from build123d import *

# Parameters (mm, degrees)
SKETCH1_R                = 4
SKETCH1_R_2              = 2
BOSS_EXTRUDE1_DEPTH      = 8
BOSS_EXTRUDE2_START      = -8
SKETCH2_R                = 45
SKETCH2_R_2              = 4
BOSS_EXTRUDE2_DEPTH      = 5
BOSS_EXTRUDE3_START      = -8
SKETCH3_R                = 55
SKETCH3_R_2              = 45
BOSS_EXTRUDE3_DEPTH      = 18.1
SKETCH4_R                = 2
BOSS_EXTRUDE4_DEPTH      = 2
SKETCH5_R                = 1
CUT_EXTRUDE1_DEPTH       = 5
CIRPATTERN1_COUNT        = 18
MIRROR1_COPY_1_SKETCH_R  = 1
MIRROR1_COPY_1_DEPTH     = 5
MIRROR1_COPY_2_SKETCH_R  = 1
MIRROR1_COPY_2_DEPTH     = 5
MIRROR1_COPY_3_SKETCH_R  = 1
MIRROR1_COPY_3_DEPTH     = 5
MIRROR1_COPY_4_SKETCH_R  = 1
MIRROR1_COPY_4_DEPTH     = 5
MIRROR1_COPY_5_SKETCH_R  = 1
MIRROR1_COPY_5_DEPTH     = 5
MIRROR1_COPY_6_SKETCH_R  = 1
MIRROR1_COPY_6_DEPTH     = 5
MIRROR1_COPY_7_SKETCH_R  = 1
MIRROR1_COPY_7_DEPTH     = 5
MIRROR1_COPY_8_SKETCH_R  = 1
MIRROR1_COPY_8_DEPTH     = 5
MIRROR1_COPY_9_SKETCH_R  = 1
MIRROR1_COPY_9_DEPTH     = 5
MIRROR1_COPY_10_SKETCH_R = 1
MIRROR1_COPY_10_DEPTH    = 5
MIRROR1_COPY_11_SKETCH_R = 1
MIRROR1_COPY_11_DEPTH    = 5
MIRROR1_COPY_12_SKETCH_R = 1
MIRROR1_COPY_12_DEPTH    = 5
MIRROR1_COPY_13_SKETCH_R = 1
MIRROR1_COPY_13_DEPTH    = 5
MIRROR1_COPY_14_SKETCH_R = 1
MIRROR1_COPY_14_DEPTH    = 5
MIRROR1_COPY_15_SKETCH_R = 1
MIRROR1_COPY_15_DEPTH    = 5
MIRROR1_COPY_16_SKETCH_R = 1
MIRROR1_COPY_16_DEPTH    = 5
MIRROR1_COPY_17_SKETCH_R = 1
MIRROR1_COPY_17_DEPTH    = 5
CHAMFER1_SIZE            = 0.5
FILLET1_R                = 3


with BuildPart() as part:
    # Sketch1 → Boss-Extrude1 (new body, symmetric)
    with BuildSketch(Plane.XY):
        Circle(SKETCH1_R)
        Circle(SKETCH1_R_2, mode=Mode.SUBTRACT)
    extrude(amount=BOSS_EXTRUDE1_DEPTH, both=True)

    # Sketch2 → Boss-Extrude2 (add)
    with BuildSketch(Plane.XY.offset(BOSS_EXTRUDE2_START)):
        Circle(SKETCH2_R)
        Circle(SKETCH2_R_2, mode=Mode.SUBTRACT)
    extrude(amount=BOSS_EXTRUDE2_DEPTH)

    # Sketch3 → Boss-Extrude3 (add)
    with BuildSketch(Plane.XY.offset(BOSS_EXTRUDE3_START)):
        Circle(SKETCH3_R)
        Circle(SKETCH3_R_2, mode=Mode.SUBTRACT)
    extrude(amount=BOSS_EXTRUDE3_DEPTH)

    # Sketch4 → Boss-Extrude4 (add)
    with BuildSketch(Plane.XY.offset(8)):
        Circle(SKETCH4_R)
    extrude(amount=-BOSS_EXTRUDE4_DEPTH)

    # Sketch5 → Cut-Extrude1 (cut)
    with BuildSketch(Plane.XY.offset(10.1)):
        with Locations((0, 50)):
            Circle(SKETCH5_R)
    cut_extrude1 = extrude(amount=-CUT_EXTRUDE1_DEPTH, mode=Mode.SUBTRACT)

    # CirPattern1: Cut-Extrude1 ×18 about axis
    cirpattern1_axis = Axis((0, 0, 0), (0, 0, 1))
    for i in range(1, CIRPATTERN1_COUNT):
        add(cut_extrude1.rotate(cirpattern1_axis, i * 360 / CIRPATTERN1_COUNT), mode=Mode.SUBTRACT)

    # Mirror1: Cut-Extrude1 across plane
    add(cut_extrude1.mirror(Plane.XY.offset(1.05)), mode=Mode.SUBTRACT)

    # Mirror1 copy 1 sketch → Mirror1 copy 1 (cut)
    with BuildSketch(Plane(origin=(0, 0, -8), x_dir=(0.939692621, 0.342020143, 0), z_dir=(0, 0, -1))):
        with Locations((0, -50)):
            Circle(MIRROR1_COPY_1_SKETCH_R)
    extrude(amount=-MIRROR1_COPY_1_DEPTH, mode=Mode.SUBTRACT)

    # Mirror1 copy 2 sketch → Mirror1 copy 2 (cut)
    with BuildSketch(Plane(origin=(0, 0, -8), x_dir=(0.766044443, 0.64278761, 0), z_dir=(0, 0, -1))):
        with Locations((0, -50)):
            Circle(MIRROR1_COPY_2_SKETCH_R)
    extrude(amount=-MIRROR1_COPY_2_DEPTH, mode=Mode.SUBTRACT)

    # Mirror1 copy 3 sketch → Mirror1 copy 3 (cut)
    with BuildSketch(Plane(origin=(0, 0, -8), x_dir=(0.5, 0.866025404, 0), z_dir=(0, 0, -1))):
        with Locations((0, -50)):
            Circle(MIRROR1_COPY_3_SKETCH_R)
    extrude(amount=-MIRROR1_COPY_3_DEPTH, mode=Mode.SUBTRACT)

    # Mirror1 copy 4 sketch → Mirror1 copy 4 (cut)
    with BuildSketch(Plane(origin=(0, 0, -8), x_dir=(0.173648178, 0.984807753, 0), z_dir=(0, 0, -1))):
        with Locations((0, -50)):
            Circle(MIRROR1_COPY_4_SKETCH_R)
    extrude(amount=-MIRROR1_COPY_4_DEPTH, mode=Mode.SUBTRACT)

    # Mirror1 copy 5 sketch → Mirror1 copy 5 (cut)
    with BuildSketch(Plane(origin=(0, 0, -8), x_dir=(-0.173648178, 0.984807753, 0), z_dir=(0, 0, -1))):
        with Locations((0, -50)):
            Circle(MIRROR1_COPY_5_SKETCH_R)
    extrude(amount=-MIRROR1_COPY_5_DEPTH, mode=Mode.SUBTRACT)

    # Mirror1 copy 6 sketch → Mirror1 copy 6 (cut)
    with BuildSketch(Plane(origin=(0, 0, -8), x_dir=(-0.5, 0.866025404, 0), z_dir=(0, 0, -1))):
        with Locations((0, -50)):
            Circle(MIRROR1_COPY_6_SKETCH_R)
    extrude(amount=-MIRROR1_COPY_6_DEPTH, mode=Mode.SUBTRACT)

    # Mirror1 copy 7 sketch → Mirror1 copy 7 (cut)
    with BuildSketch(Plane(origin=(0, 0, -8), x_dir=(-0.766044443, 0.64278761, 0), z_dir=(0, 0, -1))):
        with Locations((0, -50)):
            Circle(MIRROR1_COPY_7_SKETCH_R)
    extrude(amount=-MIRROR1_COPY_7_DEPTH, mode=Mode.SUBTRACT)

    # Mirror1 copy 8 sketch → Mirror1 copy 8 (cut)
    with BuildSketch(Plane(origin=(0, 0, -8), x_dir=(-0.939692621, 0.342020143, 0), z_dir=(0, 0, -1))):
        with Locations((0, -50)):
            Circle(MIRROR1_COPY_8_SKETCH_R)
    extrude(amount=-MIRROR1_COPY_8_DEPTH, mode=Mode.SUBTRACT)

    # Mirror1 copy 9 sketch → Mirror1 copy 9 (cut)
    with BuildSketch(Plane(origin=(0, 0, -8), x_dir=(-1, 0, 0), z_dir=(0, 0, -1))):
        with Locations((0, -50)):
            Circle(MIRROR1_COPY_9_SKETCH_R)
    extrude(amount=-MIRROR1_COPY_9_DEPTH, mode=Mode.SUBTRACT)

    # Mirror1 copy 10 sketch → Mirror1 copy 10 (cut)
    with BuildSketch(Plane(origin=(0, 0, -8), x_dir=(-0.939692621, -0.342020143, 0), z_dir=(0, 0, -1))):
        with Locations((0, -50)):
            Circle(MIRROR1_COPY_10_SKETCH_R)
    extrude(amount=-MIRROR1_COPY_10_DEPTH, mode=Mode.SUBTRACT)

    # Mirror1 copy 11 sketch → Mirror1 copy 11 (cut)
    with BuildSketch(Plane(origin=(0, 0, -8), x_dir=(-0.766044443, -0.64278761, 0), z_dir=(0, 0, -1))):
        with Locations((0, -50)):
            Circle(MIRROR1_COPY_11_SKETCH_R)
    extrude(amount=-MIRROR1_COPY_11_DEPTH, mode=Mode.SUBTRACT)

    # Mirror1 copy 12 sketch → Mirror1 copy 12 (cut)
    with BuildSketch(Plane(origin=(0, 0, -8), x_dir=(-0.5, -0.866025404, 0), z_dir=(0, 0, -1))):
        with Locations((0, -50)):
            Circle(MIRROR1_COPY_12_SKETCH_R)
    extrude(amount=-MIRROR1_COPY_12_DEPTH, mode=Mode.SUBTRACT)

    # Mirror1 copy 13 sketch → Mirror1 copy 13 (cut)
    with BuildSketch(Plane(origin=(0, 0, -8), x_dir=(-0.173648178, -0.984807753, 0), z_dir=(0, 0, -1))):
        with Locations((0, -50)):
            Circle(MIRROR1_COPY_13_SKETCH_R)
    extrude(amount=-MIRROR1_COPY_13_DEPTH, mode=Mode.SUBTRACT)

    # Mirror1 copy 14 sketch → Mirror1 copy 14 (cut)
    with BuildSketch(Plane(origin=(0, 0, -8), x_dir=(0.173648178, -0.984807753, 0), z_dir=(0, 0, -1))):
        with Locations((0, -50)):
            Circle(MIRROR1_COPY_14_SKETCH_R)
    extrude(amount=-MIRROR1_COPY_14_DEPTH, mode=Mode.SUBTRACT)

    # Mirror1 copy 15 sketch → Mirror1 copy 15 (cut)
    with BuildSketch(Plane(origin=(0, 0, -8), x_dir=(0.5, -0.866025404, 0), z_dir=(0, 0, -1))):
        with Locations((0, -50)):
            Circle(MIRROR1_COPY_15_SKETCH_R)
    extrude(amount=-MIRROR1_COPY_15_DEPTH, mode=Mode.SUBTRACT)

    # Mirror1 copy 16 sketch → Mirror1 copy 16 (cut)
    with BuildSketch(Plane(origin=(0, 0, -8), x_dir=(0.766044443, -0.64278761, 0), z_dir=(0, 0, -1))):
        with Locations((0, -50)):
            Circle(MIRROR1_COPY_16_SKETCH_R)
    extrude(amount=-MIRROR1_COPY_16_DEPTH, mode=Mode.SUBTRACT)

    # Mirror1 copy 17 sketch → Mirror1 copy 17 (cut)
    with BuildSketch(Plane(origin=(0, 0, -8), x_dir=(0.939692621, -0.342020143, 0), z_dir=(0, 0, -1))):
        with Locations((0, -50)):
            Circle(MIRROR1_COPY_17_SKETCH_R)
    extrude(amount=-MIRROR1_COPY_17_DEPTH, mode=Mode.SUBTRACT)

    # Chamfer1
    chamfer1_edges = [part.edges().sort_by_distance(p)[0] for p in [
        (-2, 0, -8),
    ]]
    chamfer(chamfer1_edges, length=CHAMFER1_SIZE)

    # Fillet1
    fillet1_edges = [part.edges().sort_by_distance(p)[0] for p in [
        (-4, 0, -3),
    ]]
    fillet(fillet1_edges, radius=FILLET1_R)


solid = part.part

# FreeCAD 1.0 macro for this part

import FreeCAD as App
import Part
import Sketcher
from FreeCAD import Vector
Q = App.Units.Quantity


def edges_at(feature, points):
    """Names of the edges that pass closest to the given points."""
    edges = feature.Shape.Edges
    near = lambda p: min(range(len(edges)), key=lambda i: edges[i].distToShape(Part.Vertex(*p))[0])
    return sorted({f"Edge{near(p) + 1}" for p in points})

doc = App.newDocument("Part")
body = doc.addObject("PartDesign::Body", "Body")

# Sketch on XY plane
sketch1 = body.newObject("Sketcher::SketchObject", "Sketch")
sketch1.AttachmentSupport = (doc.getObject("XY_Plane"), [""])
sketch1.MapMode = "FlatFace"
sketch1.addGeometry(Part.Circle(Vector(0, 0, 0), Vector(0, 0, 1), 4), False)
sketch1.addGeometry(Part.Circle(Vector(0, 0, 0), Vector(0, 0, 1), 2), False)
sketch1.addConstraint(Sketcher.Constraint("Coincident", 0, 3, -1, 1))
sketch1.addConstraint(Sketcher.Constraint("Coincident", 1, 3, -1, 1))
sketch1.addConstraint(Sketcher.Constraint("Diameter", 0, Q("8 mm")))
sketch1.addConstraint(Sketcher.Constraint("Diameter", 1, Q("4 mm")))
pad1 = body.newObject("PartDesign::Pad", "Pad")
pad1.Profile = sketch1
pad1.Length = 16
pad1.Midplane = True

# Sketch on XY plane
sketch2 = body.newObject("Sketcher::SketchObject", "Sketch001")
sketch2.AttachmentSupport = (doc.getObject("XY_Plane"), [""])
sketch2.MapMode = "FlatFace"
sketch2.AttachmentOffset = App.Placement(Vector(0, 0, -8), App.Rotation())
sketch2.addGeometry(Part.Circle(Vector(0, 0, 0), Vector(0, 0, 1), 45), False)
sketch2.addGeometry(Part.Circle(Vector(0, 0, 0), Vector(0, 0, 1), 4), False)
sketch2.addConstraint(Sketcher.Constraint("Coincident", 0, 3, -1, 1))
sketch2.addConstraint(Sketcher.Constraint("Coincident", 1, 3, -1, 1))
sketch2.addConstraint(Sketcher.Constraint("Diameter", 0, Q("90 mm")))
sketch2.addConstraint(Sketcher.Constraint("Diameter", 1, Q("8 mm")))
pad2 = body.newObject("PartDesign::Pad", "Pad001")
pad2.Profile = sketch2
pad2.Length = 5

# Sketch on XY plane
sketch3 = body.newObject("Sketcher::SketchObject", "Sketch002")
sketch3.AttachmentSupport = (doc.getObject("XY_Plane"), [""])
sketch3.MapMode = "FlatFace"
sketch3.AttachmentOffset = App.Placement(Vector(0, 0, -8), App.Rotation())
sketch3.addGeometry(Part.Circle(Vector(0, 0, 0), Vector(0, 0, 1), 55), False)
sketch3.addGeometry(Part.Circle(Vector(0, 0, 0), Vector(0, 0, 1), 45), False)
sketch3.addConstraint(Sketcher.Constraint("Coincident", 0, 3, -1, 1))
sketch3.addConstraint(Sketcher.Constraint("Coincident", 1, 3, -1, 1))
sketch3.addConstraint(Sketcher.Constraint("Diameter", 0, Q("110 mm")))
sketch3.addConstraint(Sketcher.Constraint("Diameter", 1, Q("90 mm")))
pad3 = body.newObject("PartDesign::Pad", "Pad002")
pad3.Profile = sketch3
pad3.Length = 18.1

# Sketch on XY plane
sketch4 = body.newObject("Sketcher::SketchObject", "Sketch003")
sketch4.AttachmentSupport = (doc.getObject("XY_Plane"), [""])
sketch4.MapMode = "FlatFace"
sketch4.AttachmentOffset = App.Placement(Vector(0, 0, 8), App.Rotation())
sketch4.addGeometry(Part.Circle(Vector(0, 0, 0), Vector(0, 0, 1), 2), False)
sketch4.addConstraint(Sketcher.Constraint("Coincident", 0, 3, -1, 1))
sketch4.addConstraint(Sketcher.Constraint("Diameter", 0, Q("4 mm")))
pad4 = body.newObject("PartDesign::Pad", "Pad003")
pad4.Profile = sketch4
pad4.Length = 2
pad4.Reversed = True

# Sketch on XY plane
sketch5 = body.newObject("Sketcher::SketchObject", "Sketch004")
sketch5.AttachmentSupport = (doc.getObject("XY_Plane"), [""])
sketch5.MapMode = "FlatFace"
sketch5.AttachmentOffset = App.Placement(Vector(0, 0, 10.1), App.Rotation())
sketch5.addGeometry(Part.Circle(Vector(0, 50, 0), Vector(0, 0, 1), 1), False)
sketch5.addConstraint(Sketcher.Constraint("PointOnObject", 0, 3, -2))
sketch5.addConstraint(Sketcher.Constraint("Diameter", 0, Q("2 mm")))
sketch5.addConstraint(Sketcher.Constraint("DistanceY", -1, 1, 0, 3, Q("50 mm")))
pocket1 = body.newObject("PartDesign::Pocket", "Pocket")
pocket1.Profile = sketch5
pocket1.Length = 5
doc.recompute()

polarpattern = body.newObject("PartDesign::PolarPattern", "PolarPattern")
polarpattern.Originals = [pocket1]
polarpattern.Axis = (doc.getObject("Z_Axis"), [""])
polarpattern.Angle = 360
polarpattern.Occurrences = 18
body.Tip = polarpattern
doc.recompute()

datumplane = body.newObject("PartDesign::Plane", "DatumPlane")
datumplane.AttachmentSupport = (doc.getObject("XY_Plane"), [""])
datumplane.MapMode = "FlatFace"
datumplane.AttachmentOffset = App.Placement(Vector(0, 0, 1.05), App.Rotation())
mirrored = body.newObject("PartDesign::Mirrored", "Mirrored")
mirrored.Originals = [pocket1]
mirrored.MirrorPlane = (datumplane, [""])
body.Tip = mirrored

# Sketch on XY plane
sketch6 = body.newObject("Sketcher::SketchObject", "Sketch005")
sketch6.AttachmentSupport = (doc.getObject("XY_Plane"), [""])
sketch6.MapMode = "FlatFace"
sketch6.AttachmentOffset = App.Placement(Vector(0, 0, -8), App.Rotation())
sketch6.addGeometry(Part.Circle(Vector(-17.1, 47, 0), Vector(0, 0, 1), 1), False)
sketch6.addConstraint(Sketcher.Constraint("Diameter", 0, Q("2 mm")))
sketch6.addConstraint(Sketcher.Constraint("DistanceY", -1, 1, 0, 3, Q("46.984631 mm")))
sketch6.addConstraint(Sketcher.Constraint("DistanceX", 0, 3, -1, 1, Q("17.101007 mm")))
pocket2 = body.newObject("PartDesign::Pocket", "Pocket001")
pocket2.Profile = sketch6
pocket2.Length = 5
pocket2.Reversed = True

# Sketch on XY plane
sketch7 = body.newObject("Sketcher::SketchObject", "Sketch006")
sketch7.AttachmentSupport = (doc.getObject("XY_Plane"), [""])
sketch7.MapMode = "FlatFace"
sketch7.AttachmentOffset = App.Placement(Vector(0, 0, -8), App.Rotation())
sketch7.addGeometry(Part.Circle(Vector(-32.1, 38.3, 0), Vector(0, 0, 1), 1), False)
sketch7.addConstraint(Sketcher.Constraint("Diameter", 0, Q("2 mm")))
sketch7.addConstraint(Sketcher.Constraint("DistanceX", 0, 3, -1, 1, Q("32.139381 mm")))
sketch7.addConstraint(Sketcher.Constraint("DistanceY", -1, 1, 0, 3, Q("38.302222 mm")))
pocket3 = body.newObject("PartDesign::Pocket", "Pocket002")
pocket3.Profile = sketch7
pocket3.Length = 5
pocket3.Reversed = True

# Sketch on XY plane
sketch8 = body.newObject("Sketcher::SketchObject", "Sketch007")
sketch8.AttachmentSupport = (doc.getObject("XY_Plane"), [""])
sketch8.MapMode = "FlatFace"
sketch8.AttachmentOffset = App.Placement(Vector(0, 0, -8), App.Rotation())
sketch8.addGeometry(Part.Circle(Vector(-43.3, 25, 0), Vector(0, 0, 1), 1), False)
sketch8.addConstraint(Sketcher.Constraint("Diameter", 0, Q("2 mm")))
sketch8.addConstraint(Sketcher.Constraint("DistanceY", -1, 1, 0, 3, Q("25 mm")))
sketch8.addConstraint(Sketcher.Constraint("DistanceX", 0, 3, -1, 1, Q("43.30127 mm")))
pocket4 = body.newObject("PartDesign::Pocket", "Pocket003")
pocket4.Profile = sketch8
pocket4.Length = 5
pocket4.Reversed = True

# Sketch on XY plane
sketch9 = body.newObject("Sketcher::SketchObject", "Sketch008")
sketch9.AttachmentSupport = (doc.getObject("XY_Plane"), [""])
sketch9.MapMode = "FlatFace"
sketch9.AttachmentOffset = App.Placement(Vector(0, 0, -8), App.Rotation())
sketch9.addGeometry(Part.Circle(Vector(-49.2, 8.7, 0), Vector(0, 0, 1), 1), False)
sketch9.addConstraint(Sketcher.Constraint("Diameter", 0, Q("2 mm")))
sketch9.addConstraint(Sketcher.Constraint("DistanceY", -1, 1, 0, 3, Q("8.682409 mm")))
sketch9.addConstraint(Sketcher.Constraint("DistanceX", 0, 3, -1, 1, Q("49.240388 mm")))
pocket5 = body.newObject("PartDesign::Pocket", "Pocket004")
pocket5.Profile = sketch9
pocket5.Length = 5
pocket5.Reversed = True

# Sketch on XY plane
sketch10 = body.newObject("Sketcher::SketchObject", "Sketch009")
sketch10.AttachmentSupport = (doc.getObject("XY_Plane"), [""])
sketch10.MapMode = "FlatFace"
sketch10.AttachmentOffset = App.Placement(Vector(0, 0, -8), App.Rotation())
sketch10.addGeometry(Part.Circle(Vector(-49.2, -8.7, 0), Vector(0, 0, 1), 1), False)
sketch10.addConstraint(Sketcher.Constraint("Diameter", 0, Q("2 mm")))
sketch10.addConstraint(Sketcher.Constraint("DistanceY", 0, 3, -1, 1, Q("8.682409 mm")))
sketch10.addConstraint(Sketcher.Constraint("DistanceX", 0, 3, -1, 1, Q("49.240388 mm")))
pocket6 = body.newObject("PartDesign::Pocket", "Pocket005")
pocket6.Profile = sketch10
pocket6.Length = 5
pocket6.Reversed = True

# Sketch on XY plane
sketch11 = body.newObject("Sketcher::SketchObject", "Sketch010")
sketch11.AttachmentSupport = (doc.getObject("XY_Plane"), [""])
sketch11.MapMode = "FlatFace"
sketch11.AttachmentOffset = App.Placement(Vector(0, 0, -8), App.Rotation())
sketch11.addGeometry(Part.Circle(Vector(-43.3, -25, 0), Vector(0, 0, 1), 1), False)
sketch11.addConstraint(Sketcher.Constraint("Diameter", 0, Q("2 mm")))
sketch11.addConstraint(Sketcher.Constraint("DistanceY", 0, 3, -1, 1, Q("25 mm")))
sketch11.addConstraint(Sketcher.Constraint("DistanceX", 0, 3, -1, 1, Q("43.30127 mm")))
pocket7 = body.newObject("PartDesign::Pocket", "Pocket006")
pocket7.Profile = sketch11
pocket7.Length = 5
pocket7.Reversed = True

# Sketch on XY plane
sketch12 = body.newObject("Sketcher::SketchObject", "Sketch011")
sketch12.AttachmentSupport = (doc.getObject("XY_Plane"), [""])
sketch12.MapMode = "FlatFace"
sketch12.AttachmentOffset = App.Placement(Vector(0, 0, -8), App.Rotation())
sketch12.addGeometry(Part.Circle(Vector(-32.1, -38.3, 0), Vector(0, 0, 1), 1), False)
sketch12.addConstraint(Sketcher.Constraint("Diameter", 0, Q("2 mm")))
sketch12.addConstraint(Sketcher.Constraint("DistanceX", 0, 3, -1, 1, Q("32.139381 mm")))
sketch12.addConstraint(Sketcher.Constraint("DistanceY", 0, 3, -1, 1, Q("38.302222 mm")))
pocket8 = body.newObject("PartDesign::Pocket", "Pocket007")
pocket8.Profile = sketch12
pocket8.Length = 5
pocket8.Reversed = True

# Sketch on XY plane
sketch13 = body.newObject("Sketcher::SketchObject", "Sketch012")
sketch13.AttachmentSupport = (doc.getObject("XY_Plane"), [""])
sketch13.MapMode = "FlatFace"
sketch13.AttachmentOffset = App.Placement(Vector(0, 0, -8), App.Rotation())
sketch13.addGeometry(Part.Circle(Vector(-17.1, -47, 0), Vector(0, 0, 1), 1), False)
sketch13.addConstraint(Sketcher.Constraint("Diameter", 0, Q("2 mm")))
sketch13.addConstraint(Sketcher.Constraint("DistanceY", 0, 3, -1, 1, Q("46.984631 mm")))
sketch13.addConstraint(Sketcher.Constraint("DistanceX", 0, 3, -1, 1, Q("17.101007 mm")))
pocket9 = body.newObject("PartDesign::Pocket", "Pocket008")
pocket9.Profile = sketch13
pocket9.Length = 5
pocket9.Reversed = True

# Sketch on XY plane
sketch14 = body.newObject("Sketcher::SketchObject", "Sketch013")
sketch14.AttachmentSupport = (doc.getObject("XY_Plane"), [""])
sketch14.MapMode = "FlatFace"
sketch14.AttachmentOffset = App.Placement(Vector(0, 0, -8), App.Rotation())
sketch14.addGeometry(Part.Circle(Vector(0, -50, 0), Vector(0, 0, 1), 1), False)
sketch14.addConstraint(Sketcher.Constraint("PointOnObject", 0, 3, -2))
sketch14.addConstraint(Sketcher.Constraint("Diameter", 0, Q("2 mm")))
sketch14.addConstraint(Sketcher.Constraint("DistanceY", 0, 3, -1, 1, Q("50 mm")))
pocket10 = body.newObject("PartDesign::Pocket", "Pocket009")
pocket10.Profile = sketch14
pocket10.Length = 5
pocket10.Reversed = True

# Sketch on XY plane
sketch15 = body.newObject("Sketcher::SketchObject", "Sketch014")
sketch15.AttachmentSupport = (doc.getObject("XY_Plane"), [""])
sketch15.MapMode = "FlatFace"
sketch15.AttachmentOffset = App.Placement(Vector(0, 0, -8), App.Rotation())
sketch15.addGeometry(Part.Circle(Vector(17.1, -47, 0), Vector(0, 0, 1), 1), False)
sketch15.addConstraint(Sketcher.Constraint("Diameter", 0, Q("2 mm")))
sketch15.addConstraint(Sketcher.Constraint("DistanceY", 0, 3, -1, 1, Q("46.984631 mm")))
sketch15.addConstraint(Sketcher.Constraint("DistanceX", -1, 1, 0, 3, Q("17.101007 mm")))
pocket11 = body.newObject("PartDesign::Pocket", "Pocket010")
pocket11.Profile = sketch15
pocket11.Length = 5
pocket11.Reversed = True

# Sketch on XY plane
sketch16 = body.newObject("Sketcher::SketchObject", "Sketch015")
sketch16.AttachmentSupport = (doc.getObject("XY_Plane"), [""])
sketch16.MapMode = "FlatFace"
sketch16.AttachmentOffset = App.Placement(Vector(0, 0, -8), App.Rotation())
sketch16.addGeometry(Part.Circle(Vector(32.1, -38.3, 0), Vector(0, 0, 1), 1), False)
sketch16.addConstraint(Sketcher.Constraint("Diameter", 0, Q("2 mm")))
sketch16.addConstraint(Sketcher.Constraint("DistanceX", -1, 1, 0, 3, Q("32.139381 mm")))
sketch16.addConstraint(Sketcher.Constraint("DistanceY", 0, 3, -1, 1, Q("38.302222 mm")))
pocket12 = body.newObject("PartDesign::Pocket", "Pocket011")
pocket12.Profile = sketch16
pocket12.Length = 5
pocket12.Reversed = True

# Sketch on XY plane
sketch17 = body.newObject("Sketcher::SketchObject", "Sketch016")
sketch17.AttachmentSupport = (doc.getObject("XY_Plane"), [""])
sketch17.MapMode = "FlatFace"
sketch17.AttachmentOffset = App.Placement(Vector(0, 0, -8), App.Rotation())
sketch17.addGeometry(Part.Circle(Vector(43.3, -25, 0), Vector(0, 0, 1), 1), False)
sketch17.addConstraint(Sketcher.Constraint("Diameter", 0, Q("2 mm")))
sketch17.addConstraint(Sketcher.Constraint("DistanceY", 0, 3, -1, 1, Q("25 mm")))
sketch17.addConstraint(Sketcher.Constraint("DistanceX", -1, 1, 0, 3, Q("43.30127 mm")))
pocket13 = body.newObject("PartDesign::Pocket", "Pocket012")
pocket13.Profile = sketch17
pocket13.Length = 5
pocket13.Reversed = True

# Sketch on XY plane
sketch18 = body.newObject("Sketcher::SketchObject", "Sketch017")
sketch18.AttachmentSupport = (doc.getObject("XY_Plane"), [""])
sketch18.MapMode = "FlatFace"
sketch18.AttachmentOffset = App.Placement(Vector(0, 0, -8), App.Rotation())
sketch18.addGeometry(Part.Circle(Vector(49.2, -8.7, 0), Vector(0, 0, 1), 1), False)
sketch18.addConstraint(Sketcher.Constraint("Diameter", 0, Q("2 mm")))
sketch18.addConstraint(Sketcher.Constraint("DistanceY", 0, 3, -1, 1, Q("8.682409 mm")))
sketch18.addConstraint(Sketcher.Constraint("DistanceX", -1, 1, 0, 3, Q("49.240388 mm")))
pocket14 = body.newObject("PartDesign::Pocket", "Pocket013")
pocket14.Profile = sketch18
pocket14.Length = 5
pocket14.Reversed = True

# Sketch on XY plane
sketch19 = body.newObject("Sketcher::SketchObject", "Sketch018")
sketch19.AttachmentSupport = (doc.getObject("XY_Plane"), [""])
sketch19.MapMode = "FlatFace"
sketch19.AttachmentOffset = App.Placement(Vector(0, 0, -8), App.Rotation())
sketch19.addGeometry(Part.Circle(Vector(49.2, 8.7, 0), Vector(0, 0, 1), 1), False)
sketch19.addConstraint(Sketcher.Constraint("Diameter", 0, Q("2 mm")))
sketch19.addConstraint(Sketcher.Constraint("DistanceY", -1, 1, 0, 3, Q("8.682409 mm")))
sketch19.addConstraint(Sketcher.Constraint("DistanceX", -1, 1, 0, 3, Q("49.240388 mm")))
pocket15 = body.newObject("PartDesign::Pocket", "Pocket014")
pocket15.Profile = sketch19
pocket15.Length = 5
pocket15.Reversed = True

# Sketch on XY plane
sketch20 = body.newObject("Sketcher::SketchObject", "Sketch019")
sketch20.AttachmentSupport = (doc.getObject("XY_Plane"), [""])
sketch20.MapMode = "FlatFace"
sketch20.AttachmentOffset = App.Placement(Vector(0, 0, -8), App.Rotation())
sketch20.addGeometry(Part.Circle(Vector(43.3, 25, 0), Vector(0, 0, 1), 1), False)
sketch20.addConstraint(Sketcher.Constraint("Diameter", 0, Q("2 mm")))
sketch20.addConstraint(Sketcher.Constraint("DistanceY", -1, 1, 0, 3, Q("25 mm")))
sketch20.addConstraint(Sketcher.Constraint("DistanceX", -1, 1, 0, 3, Q("43.30127 mm")))
pocket16 = body.newObject("PartDesign::Pocket", "Pocket015")
pocket16.Profile = sketch20
pocket16.Length = 5
pocket16.Reversed = True

# Sketch on XY plane
sketch21 = body.newObject("Sketcher::SketchObject", "Sketch020")
sketch21.AttachmentSupport = (doc.getObject("XY_Plane"), [""])
sketch21.MapMode = "FlatFace"
sketch21.AttachmentOffset = App.Placement(Vector(0, 0, -8), App.Rotation())
sketch21.addGeometry(Part.Circle(Vector(32.1, 38.3, 0), Vector(0, 0, 1), 1), False)
sketch21.addConstraint(Sketcher.Constraint("Diameter", 0, Q("2 mm")))
sketch21.addConstraint(Sketcher.Constraint("DistanceX", -1, 1, 0, 3, Q("32.139381 mm")))
sketch21.addConstraint(Sketcher.Constraint("DistanceY", -1, 1, 0, 3, Q("38.302222 mm")))
pocket17 = body.newObject("PartDesign::Pocket", "Pocket016")
pocket17.Profile = sketch21
pocket17.Length = 5
pocket17.Reversed = True

# Sketch on XY plane
sketch22 = body.newObject("Sketcher::SketchObject", "Sketch021")
sketch22.AttachmentSupport = (doc.getObject("XY_Plane"), [""])
sketch22.MapMode = "FlatFace"
sketch22.AttachmentOffset = App.Placement(Vector(0, 0, -8), App.Rotation())
sketch22.addGeometry(Part.Circle(Vector(17.1, 47, 0), Vector(0, 0, 1), 1), False)
sketch22.addConstraint(Sketcher.Constraint("Diameter", 0, Q("2 mm")))
sketch22.addConstraint(Sketcher.Constraint("DistanceY", -1, 1, 0, 3, Q("46.984631 mm")))
sketch22.addConstraint(Sketcher.Constraint("DistanceX", -1, 1, 0, 3, Q("17.101007 mm")))
pocket18 = body.newObject("PartDesign::Pocket", "Pocket017")
pocket18.Profile = sketch22
pocket18.Length = 5
pocket18.Reversed = True
doc.recompute()

chamfer = body.newObject("PartDesign::Chamfer", "Chamfer")
chamfer.Base = (pocket18, edges_at(pocket18, [(-2, 0, -8)]))
chamfer.Size = 0.5
doc.recompute()

fillet = body.newObject("PartDesign::Fillet", "Fillet")
fillet.Base = (chamfer, edges_at(chamfer, [(-4, 0, -3)]))
fillet.Radius = 3

doc.recompute()
